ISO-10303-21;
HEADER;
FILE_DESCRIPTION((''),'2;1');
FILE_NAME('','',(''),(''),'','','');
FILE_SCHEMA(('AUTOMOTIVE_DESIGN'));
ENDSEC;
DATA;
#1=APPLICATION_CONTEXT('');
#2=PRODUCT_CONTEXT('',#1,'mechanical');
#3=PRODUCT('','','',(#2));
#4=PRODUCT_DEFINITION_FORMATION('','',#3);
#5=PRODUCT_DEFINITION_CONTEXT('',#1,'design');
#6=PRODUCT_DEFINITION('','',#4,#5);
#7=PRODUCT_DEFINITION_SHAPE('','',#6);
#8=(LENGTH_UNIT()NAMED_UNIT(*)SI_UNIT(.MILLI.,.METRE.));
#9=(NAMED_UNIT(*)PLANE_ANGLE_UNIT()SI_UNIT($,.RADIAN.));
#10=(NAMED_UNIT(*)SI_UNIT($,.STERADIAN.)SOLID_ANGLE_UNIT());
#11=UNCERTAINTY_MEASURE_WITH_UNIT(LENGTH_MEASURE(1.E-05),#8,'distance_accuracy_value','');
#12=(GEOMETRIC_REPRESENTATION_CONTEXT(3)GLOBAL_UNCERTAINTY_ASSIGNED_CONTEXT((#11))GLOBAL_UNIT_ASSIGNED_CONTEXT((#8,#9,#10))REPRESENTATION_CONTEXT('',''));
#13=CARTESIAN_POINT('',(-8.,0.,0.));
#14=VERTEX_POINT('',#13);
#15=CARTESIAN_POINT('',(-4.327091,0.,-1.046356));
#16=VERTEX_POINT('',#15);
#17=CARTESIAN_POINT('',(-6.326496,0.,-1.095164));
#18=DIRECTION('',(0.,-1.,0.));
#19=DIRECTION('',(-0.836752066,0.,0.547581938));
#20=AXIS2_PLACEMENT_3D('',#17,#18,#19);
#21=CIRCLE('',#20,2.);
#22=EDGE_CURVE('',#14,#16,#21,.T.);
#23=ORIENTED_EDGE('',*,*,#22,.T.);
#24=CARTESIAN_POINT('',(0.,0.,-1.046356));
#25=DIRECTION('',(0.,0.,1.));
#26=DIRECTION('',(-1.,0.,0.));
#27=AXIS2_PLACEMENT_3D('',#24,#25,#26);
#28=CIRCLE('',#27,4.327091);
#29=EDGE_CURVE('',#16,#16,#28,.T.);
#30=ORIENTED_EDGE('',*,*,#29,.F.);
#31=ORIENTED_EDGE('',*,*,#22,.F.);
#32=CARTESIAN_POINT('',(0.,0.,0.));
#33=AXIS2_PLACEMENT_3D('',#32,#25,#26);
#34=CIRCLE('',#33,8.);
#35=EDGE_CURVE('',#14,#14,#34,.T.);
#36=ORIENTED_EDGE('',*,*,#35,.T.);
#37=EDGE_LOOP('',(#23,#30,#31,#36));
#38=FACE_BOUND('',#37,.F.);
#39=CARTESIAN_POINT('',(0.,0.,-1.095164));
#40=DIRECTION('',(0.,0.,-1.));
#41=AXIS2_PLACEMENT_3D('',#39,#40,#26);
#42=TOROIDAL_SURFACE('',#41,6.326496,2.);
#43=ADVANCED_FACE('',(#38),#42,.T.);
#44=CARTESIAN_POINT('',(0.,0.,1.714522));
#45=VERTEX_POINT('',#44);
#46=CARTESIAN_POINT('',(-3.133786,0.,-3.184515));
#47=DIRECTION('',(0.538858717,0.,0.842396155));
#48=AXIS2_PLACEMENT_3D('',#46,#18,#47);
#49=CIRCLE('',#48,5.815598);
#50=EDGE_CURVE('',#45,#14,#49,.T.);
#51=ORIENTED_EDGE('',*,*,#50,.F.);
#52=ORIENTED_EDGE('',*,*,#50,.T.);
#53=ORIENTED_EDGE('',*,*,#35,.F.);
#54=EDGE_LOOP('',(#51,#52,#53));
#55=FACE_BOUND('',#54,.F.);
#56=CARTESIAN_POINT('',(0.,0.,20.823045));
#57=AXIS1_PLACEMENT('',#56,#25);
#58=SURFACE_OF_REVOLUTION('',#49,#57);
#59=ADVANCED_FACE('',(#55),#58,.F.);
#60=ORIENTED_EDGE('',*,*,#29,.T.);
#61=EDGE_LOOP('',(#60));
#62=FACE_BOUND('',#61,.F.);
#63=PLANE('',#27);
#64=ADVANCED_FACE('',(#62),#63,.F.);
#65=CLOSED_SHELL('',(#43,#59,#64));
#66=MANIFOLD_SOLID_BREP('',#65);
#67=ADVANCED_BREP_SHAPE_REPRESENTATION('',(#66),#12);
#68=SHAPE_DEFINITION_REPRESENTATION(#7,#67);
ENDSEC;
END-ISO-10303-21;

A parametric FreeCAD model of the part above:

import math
import FreeCAD as App
import Part
import Sketcher

V = App.Vector

doc = App.newDocument("Part")
body = doc.addObject("PartDesign::Body", "Body")

sketch1 = body.newObject("Sketcher::SketchObject", "Sketch")
sketch1.AttachmentSupport = (doc.getObject("XZ_Plane"), [""])
sketch1.MapMode = "FlatFace"
sketch1.addGeometry(Part.ArcOfCircle(Part.Circle(V(-3.1, -3.2, 0), V(0, 0, 1), 5.8), math.radians(57), math.radians(147)), False)
sketch1.addGeometry(Part.ArcOfCircle(Part.Circle(V(-6.3, -1.1, 0), V(0, 0, 1), 2), math.radians(147), math.radians(361)), False)
sketch1.addGeometry(Part.LineSegment(V(-4.3, -1, 0), V(0, -1, 0)), False)
sketch1.addGeometry(Part.LineSegment(V(0, -1, 0), V(0, 1.7, 0)), False)
sketch1.addConstraint(Sketcher.Constraint("Tangent", 0, 2, 1, 1))
sketch1.addConstraint(Sketcher.Constraint("Coincident", 1, 2, 2, 1))
sketch1.addConstraint(Sketcher.Constraint("Coincident", 2, 2, 3, 1))
sketch1.addConstraint(Sketcher.Constraint("Coincident", 3, 2, 0, 1))
sketch1.addConstraint(Sketcher.Constraint("Horizontal", 2))
sketch1.addConstraint(Sketcher.Constraint("Vertical", 3))
sketch1.addConstraint(Sketcher.Constraint("PointOnObject", 0, 2, -1))
sketch1.addConstraint(Sketcher.Constraint("PointOnObject", 2, 2, -2))
sketch1.addConstraint(Sketcher.Constraint("Radius", 1, 2.0))
sketch1.addConstraint(Sketcher.Constraint("DistanceX", 0, 2, -1, 1, 8.0))
sketch1.addConstraint(Sketcher.Constraint("Radius", 0, 5.815598))
sketch1.addConstraint(Sketcher.Constraint("DistanceX", 2, 1, 2, 2, 4.327091))
sketch1.addConstraint(Sketcher.Constraint("DistanceY", 3, 1, 3, 2, 2.760878))
revolution = body.newObject("PartDesign::Revolution", "Revolution")
revolution.Profile = sketch1
revolution.ReferenceAxis = (sketch1, ["V_Axis"])
revolution.Angle = 360

doc.recompute()
